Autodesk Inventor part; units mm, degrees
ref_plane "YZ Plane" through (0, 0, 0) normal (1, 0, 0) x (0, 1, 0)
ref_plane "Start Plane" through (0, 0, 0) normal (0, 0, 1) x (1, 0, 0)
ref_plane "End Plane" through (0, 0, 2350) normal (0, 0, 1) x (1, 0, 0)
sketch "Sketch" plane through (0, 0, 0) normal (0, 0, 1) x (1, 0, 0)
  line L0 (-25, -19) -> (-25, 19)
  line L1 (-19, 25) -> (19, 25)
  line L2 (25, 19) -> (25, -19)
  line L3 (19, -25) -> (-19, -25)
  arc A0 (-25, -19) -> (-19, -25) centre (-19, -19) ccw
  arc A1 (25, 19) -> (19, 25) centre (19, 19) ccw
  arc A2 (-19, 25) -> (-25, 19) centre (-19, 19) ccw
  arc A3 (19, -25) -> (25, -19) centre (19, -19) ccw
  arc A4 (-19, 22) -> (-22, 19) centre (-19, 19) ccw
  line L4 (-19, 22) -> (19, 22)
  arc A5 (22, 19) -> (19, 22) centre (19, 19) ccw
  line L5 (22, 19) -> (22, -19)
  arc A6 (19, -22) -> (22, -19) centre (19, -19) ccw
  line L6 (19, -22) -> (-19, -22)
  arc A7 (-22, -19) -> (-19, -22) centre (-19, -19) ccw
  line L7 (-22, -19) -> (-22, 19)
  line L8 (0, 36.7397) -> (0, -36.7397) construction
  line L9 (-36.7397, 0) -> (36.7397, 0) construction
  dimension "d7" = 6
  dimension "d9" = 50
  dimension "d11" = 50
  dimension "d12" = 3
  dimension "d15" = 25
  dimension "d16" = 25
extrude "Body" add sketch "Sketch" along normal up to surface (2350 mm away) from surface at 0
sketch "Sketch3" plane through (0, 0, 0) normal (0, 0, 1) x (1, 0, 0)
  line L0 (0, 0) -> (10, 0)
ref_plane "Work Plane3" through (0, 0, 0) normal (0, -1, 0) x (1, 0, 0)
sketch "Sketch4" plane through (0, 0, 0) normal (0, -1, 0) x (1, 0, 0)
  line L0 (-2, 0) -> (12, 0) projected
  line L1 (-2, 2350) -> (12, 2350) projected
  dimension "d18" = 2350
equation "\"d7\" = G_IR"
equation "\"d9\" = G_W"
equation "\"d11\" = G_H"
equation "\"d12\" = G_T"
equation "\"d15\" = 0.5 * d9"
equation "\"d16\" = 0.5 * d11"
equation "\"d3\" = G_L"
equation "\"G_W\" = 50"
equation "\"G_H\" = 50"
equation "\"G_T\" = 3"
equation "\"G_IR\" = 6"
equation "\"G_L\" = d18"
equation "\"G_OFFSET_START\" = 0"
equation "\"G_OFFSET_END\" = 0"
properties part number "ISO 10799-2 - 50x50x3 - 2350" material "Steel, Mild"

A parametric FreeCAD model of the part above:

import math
import FreeCAD as App
import Part
import Sketcher

V = App.Vector
Q = App.Units.Quantity

doc = App.newDocument("Part")
body = doc.addObject("PartDesign::Body", "Body")

sketch1 = doc.addObject("Sketcher::SketchObject", "Sketch")
body.addObject(sketch1)
sketch1.AttachmentSupport = (doc.XY_Plane, [""])
sketch1.MapMode = "FlatFace"
sketch1.addGeometry([
    Part.LineSegment(V(-25, 19, 0), V(-25, -19, 0)),
    Part.ArcOfCircle(Part.Circle(V(-19, -19, 0), V(0, 0, 1), 6), math.radians(180), math.radians(270)),
    Part.LineSegment(V(-19, -25, 0), V(19, -25, 0)),
    Part.ArcOfCircle(Part.Circle(V(19, -19, 0), V(0, 0, 1), 6), math.radians(-90), math.radians(0)),
    Part.LineSegment(V(25, -19, 0), V(25, 19, 0)),
    Part.ArcOfCircle(Part.Circle(V(19, 19, 0), V(0, 0, 1), 6), math.radians(0), math.radians(90)),
    Part.LineSegment(V(19, 25, 0), V(-19, 25, 0)),
    Part.ArcOfCircle(Part.Circle(V(-19, 19, 0), V(0, 0, 1), 6), math.radians(90), math.radians(180)),
    Part.ArcOfCircle(Part.Circle(V(-19, 19, 0), V(0, 0, 1), 3), math.radians(90), math.radians(180)),
    Part.LineSegment(V(-19, 22, 0), V(19, 22, 0)),
    Part.ArcOfCircle(Part.Circle(V(19, 19, 0), V(0, 0, 1), 3), math.radians(0), math.radians(90)),
    Part.LineSegment(V(22, 19, 0), V(22, -19, 0)),
    Part.ArcOfCircle(Part.Circle(V(19, -19, 0), V(0, 0, 1), 3), math.radians(-90), math.radians(0)),
    Part.LineSegment(V(19, -22, 0), V(-19, -22, 0)),
    Part.ArcOfCircle(Part.Circle(V(-19, -19, 0), V(0, 0, 1), 3), math.radians(180), math.radians(270)),
    Part.LineSegment(V(-22, -19, 0), V(-22, 19, 0)),
], False)
sketch1.addConstraint([
    Sketcher.Constraint("Tangent", 0, 2, 1, 1),
    Sketcher.Constraint("Tangent", 1, 2, 2, 1),
    Sketcher.Constraint("Tangent", 2, 2, 3, 1),
    Sketcher.Constraint("Tangent", 3, 2, 4, 1),
    Sketcher.Constraint("Tangent", 4, 2, 5, 1),
    Sketcher.Constraint("Tangent", 5, 2, 6, 1),
    Sketcher.Constraint("Tangent", 6, 2, 7, 1),
    Sketcher.Constraint("Tangent", 7, 2, 0, 1),
    Sketcher.Constraint("Tangent", 8, 1, 9, 1),
    Sketcher.Constraint("Tangent", 9, 2, 10, 2),
    Sketcher.Constraint("Tangent", 10, 1, 11, 1),
    Sketcher.Constraint("Tangent", 11, 2, 12, 2),
    Sketcher.Constraint("Tangent", 12, 1, 13, 1),
    Sketcher.Constraint("Tangent", 13, 2, 14, 2),
    Sketcher.Constraint("Tangent", 14, 1, 15, 1),
    Sketcher.Constraint("Tangent", 15, 2, 8, 2),
    Sketcher.Constraint("Vertical", 0),
    Sketcher.Constraint("Horizontal", 2),
    Sketcher.Constraint("Vertical", 4),
    Sketcher.Constraint("Horizontal", 6),
    Sketcher.Constraint("Horizontal", 9),
    Sketcher.Constraint("Vertical", 11),
    Sketcher.Constraint("Horizontal", 13),
    Sketcher.Constraint("Vertical", 15),
    Sketcher.Constraint("Coincident", 8, 3, 7, 3),
    Sketcher.Constraint("Coincident", 10, 3, 5, 3),
    Sketcher.Constraint("Coincident", 12, 3, 3, 3),
    Sketcher.Constraint("Equal", 1, 3),
    Sketcher.Constraint("Equal", 3, 5),
    Sketcher.Constraint("Equal", 5, 7),
    Sketcher.Constraint("Equal", 12, 14),
    Sketcher.Constraint("Symmetric", 1, 3, 5, 3, -1, 1),
    Sketcher.Constraint("Equal", 13, 0),
    Sketcher.Constraint("Radius", 1, Q("6 mm")),
    Sketcher.Constraint("Radius", 8, Q("3 mm")),
    Sketcher.Constraint("DistanceX", 0, 2, -1, 1, Q("25 mm")),
])
pad1 = doc.addObject("PartDesign::Pad", "Pad")
body.addObject(pad1)
pad1.Profile = sketch1
pad1.Length = 2350

doc.recompute()
